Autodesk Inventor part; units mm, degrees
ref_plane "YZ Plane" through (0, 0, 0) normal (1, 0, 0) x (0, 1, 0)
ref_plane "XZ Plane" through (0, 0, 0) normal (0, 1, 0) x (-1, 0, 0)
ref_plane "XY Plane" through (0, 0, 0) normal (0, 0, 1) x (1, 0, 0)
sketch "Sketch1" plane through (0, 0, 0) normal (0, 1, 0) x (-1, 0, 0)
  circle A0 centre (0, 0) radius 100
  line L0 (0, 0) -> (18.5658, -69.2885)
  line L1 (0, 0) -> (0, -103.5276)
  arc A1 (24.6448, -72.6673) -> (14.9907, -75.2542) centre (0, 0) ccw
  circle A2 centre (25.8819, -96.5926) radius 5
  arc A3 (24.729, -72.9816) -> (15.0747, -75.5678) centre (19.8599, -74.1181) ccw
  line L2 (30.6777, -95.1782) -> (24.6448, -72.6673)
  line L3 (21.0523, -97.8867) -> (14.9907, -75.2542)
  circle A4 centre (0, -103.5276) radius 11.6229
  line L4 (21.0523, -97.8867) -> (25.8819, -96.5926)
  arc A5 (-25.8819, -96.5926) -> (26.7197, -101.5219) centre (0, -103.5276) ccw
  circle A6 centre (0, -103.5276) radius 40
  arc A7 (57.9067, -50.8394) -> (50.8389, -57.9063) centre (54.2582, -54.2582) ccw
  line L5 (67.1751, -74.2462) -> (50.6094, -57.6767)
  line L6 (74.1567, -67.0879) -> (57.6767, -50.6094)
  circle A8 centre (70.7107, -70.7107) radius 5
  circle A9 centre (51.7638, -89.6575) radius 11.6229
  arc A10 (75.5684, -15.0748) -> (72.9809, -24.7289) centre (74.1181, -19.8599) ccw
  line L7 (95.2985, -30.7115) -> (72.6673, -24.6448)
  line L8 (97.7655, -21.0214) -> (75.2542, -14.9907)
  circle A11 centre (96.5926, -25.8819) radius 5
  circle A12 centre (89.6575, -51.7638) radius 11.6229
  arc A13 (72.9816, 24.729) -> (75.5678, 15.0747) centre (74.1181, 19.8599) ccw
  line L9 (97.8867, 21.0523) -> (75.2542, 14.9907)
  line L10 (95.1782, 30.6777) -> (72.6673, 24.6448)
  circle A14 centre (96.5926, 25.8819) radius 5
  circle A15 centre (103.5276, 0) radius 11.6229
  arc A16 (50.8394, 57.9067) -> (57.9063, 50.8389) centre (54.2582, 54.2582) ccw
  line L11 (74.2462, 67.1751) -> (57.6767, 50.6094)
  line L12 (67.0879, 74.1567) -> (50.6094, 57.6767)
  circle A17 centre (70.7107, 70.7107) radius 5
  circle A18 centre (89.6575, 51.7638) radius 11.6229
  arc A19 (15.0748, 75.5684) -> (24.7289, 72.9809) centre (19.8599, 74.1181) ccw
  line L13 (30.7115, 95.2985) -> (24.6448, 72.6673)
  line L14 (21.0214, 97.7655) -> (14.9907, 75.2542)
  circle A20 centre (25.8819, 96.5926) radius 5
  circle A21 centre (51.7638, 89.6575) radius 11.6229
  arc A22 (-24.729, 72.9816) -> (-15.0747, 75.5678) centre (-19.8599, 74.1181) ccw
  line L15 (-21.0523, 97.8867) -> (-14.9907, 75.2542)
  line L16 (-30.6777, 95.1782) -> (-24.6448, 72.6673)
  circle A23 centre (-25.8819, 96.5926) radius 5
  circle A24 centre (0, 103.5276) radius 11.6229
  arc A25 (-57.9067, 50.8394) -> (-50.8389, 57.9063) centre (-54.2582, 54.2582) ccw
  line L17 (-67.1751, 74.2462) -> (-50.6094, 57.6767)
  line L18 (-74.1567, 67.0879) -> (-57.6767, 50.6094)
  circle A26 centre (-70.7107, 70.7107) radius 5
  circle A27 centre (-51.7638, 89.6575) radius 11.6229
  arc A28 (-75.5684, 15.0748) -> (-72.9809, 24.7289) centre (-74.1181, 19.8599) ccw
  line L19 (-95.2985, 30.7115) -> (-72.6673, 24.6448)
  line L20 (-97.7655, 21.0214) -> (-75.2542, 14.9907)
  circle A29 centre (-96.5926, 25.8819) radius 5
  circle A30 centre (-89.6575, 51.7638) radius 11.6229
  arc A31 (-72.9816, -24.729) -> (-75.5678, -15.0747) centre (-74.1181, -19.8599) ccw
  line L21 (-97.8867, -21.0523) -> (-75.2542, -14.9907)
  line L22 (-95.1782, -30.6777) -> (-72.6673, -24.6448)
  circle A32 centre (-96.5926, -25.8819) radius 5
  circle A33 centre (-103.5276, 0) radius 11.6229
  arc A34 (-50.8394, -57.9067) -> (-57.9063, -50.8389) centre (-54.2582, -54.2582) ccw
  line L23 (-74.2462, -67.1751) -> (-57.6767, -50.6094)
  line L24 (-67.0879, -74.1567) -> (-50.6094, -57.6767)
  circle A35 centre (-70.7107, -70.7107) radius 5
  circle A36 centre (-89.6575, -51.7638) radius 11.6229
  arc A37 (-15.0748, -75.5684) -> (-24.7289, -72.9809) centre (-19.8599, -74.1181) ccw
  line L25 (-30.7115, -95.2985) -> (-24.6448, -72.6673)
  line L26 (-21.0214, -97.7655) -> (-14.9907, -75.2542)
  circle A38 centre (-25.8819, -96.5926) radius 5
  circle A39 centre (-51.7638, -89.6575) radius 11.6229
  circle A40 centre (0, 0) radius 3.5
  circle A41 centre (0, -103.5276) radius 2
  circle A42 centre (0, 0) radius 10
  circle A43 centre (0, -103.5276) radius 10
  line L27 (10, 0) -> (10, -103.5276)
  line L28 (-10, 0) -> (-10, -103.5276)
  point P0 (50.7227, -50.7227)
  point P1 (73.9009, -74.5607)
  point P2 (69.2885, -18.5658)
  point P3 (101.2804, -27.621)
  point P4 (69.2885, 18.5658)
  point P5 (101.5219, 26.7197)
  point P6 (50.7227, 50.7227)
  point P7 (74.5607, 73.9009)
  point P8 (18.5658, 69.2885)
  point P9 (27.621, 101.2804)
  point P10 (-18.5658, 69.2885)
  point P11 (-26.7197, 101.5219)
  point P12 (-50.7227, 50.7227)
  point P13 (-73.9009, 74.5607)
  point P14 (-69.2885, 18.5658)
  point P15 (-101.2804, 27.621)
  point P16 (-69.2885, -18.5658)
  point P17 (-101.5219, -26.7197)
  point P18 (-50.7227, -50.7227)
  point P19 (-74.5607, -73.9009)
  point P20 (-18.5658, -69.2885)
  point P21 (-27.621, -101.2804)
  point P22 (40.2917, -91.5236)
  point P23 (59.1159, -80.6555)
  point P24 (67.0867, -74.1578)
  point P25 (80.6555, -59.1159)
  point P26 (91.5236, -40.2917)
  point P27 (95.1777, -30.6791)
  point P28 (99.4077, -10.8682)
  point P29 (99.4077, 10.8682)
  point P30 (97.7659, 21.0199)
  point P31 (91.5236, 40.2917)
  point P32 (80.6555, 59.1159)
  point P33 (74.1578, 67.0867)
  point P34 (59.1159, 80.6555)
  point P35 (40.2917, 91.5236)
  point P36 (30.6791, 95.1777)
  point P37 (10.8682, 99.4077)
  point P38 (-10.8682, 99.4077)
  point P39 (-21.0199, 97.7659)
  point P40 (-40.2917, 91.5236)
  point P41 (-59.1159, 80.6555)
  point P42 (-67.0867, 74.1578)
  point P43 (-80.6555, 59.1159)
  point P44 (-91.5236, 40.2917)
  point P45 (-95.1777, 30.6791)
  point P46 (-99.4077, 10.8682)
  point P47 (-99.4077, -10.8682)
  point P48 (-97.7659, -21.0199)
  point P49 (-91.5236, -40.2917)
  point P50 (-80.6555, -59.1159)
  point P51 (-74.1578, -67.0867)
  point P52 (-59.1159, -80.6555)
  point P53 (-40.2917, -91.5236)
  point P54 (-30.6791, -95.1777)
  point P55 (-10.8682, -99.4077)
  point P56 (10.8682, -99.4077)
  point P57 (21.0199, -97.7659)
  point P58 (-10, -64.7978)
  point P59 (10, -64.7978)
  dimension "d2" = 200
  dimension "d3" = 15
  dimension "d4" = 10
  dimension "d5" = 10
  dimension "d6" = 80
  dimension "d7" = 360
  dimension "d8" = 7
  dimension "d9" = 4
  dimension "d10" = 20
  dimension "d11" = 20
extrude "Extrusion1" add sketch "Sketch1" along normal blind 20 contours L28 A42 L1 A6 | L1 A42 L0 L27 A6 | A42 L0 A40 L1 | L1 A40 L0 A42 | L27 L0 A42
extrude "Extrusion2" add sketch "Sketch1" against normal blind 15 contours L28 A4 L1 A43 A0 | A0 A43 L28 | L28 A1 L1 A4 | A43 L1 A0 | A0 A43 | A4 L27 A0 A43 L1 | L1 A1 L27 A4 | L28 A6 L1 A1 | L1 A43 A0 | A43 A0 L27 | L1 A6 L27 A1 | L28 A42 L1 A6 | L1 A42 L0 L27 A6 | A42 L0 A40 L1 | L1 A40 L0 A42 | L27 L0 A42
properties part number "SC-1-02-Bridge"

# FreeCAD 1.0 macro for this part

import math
import FreeCAD as App
import Part
import Sketcher

doc = App.newDocument("Part")
params = doc.addObject("Spreadsheet::Sheet", "Params")
for row, (alias, value) in enumerate([
    ("sketch1_diameter", "7 mm"),
    ("sketch1_radius", "40 mm"),
    ("sketch1_radius2", "10 mm"),
    ("pad1_length", "20 mm"),
    ("sketch2_diameter", "4 mm"),
    ("sketch2_diameter2", "7 mm"),
    ("sketch2_radius", "10 mm"),
    ("pad2_length", "15 mm"),
], start=1):
    params.set(f"A{row}", alias)
    params.set(f"B{row}", "=" + value)
    params.setAlias(f"B{row}", alias)

body = doc.addObject("PartDesign::Body", "Body")

# Sketch on XZ plane
sketch1 = body.newObject("Sketcher::SketchObject", "Sketch")
sketch1.AttachmentSupport = (doc.getObject("XZ_Plane"), [""])
sketch1.MapMode = "FlatFace"
sketch1.addGeometry([
    Part.LineSegment(App.Vector(10, 0, 0), App.Vector(10, -64.797767, 0)),  # 0
    Part.ArcOfCircle(Part.Circle(App.Vector(0, -103.5276, 0), App.Vector(0, 0, 1), 40), math.radians(75.522488), math.radians(104.477512)),  # 1
    Part.LineSegment(App.Vector(-10, -64.797767, 0), App.Vector(-10, 0, 0)),  # 2
    Part.ArcOfCircle(Part.Circle(App.Vector(0, 0, 0), App.Vector(0, 0, 1), 10), math.radians(0), math.radians(180)),  # 3
    Part.Circle(App.Vector(0, 0, 0), App.Vector(0, 0, 1), 3.5),  # 4
], False)
sketch1.addConstraint([
    Sketcher.Constraint("Coincident", 0, 2, 1, 1),
    Sketcher.Constraint("Coincident", 1, 2, 2, 1),
    Sketcher.Constraint("Tangent", 2, 2, 3, 2),
    Sketcher.Constraint("Tangent", 3, 1, 0, 1),
    Sketcher.Constraint("Vertical", 0),
    Sketcher.Constraint("Vertical", 2),
    Sketcher.Constraint("Coincident", 3, 3, -1, 1),
    Sketcher.Constraint("Coincident", 4, 3, -1, 1),
    Sketcher.Constraint("PointOnObject", 1, 3, -2),
    Sketcher.Constraint("Diameter", 4, 7.0),
    Sketcher.Constraint("Radius", 1, 40.0),
    Sketcher.Constraint("Radius", 3, 10.0),
    Sketcher.Constraint("DistanceY", 0, 2, 0, 1, 64.7978),
])
sketch1.setExpression("Constraints[9]", "Params.sketch1_diameter")
sketch1.setExpression("Constraints[10]", "Params.sketch1_radius")
sketch1.setExpression("Constraints[11]", "Params.sketch1_radius2")
pad1 = body.newObject("PartDesign::Pad", "Pad")
pad1.Profile = sketch1
pad1.setExpression("Length", "Params.pad1_length")
pad1.Reversed = True

# Sketch on XZ plane
sketch2 = body.newObject("Sketcher::SketchObject", "Sketch001")
sketch2.AttachmentSupport = (doc.getObject("XZ_Plane"), [""])
sketch2.MapMode = "FlatFace"
sketch2.addGeometry([
    Part.ArcOfCircle(Part.Circle(App.Vector(0, -103.5276, 0), App.Vector(0, 0, 1), 10), math.radians(180), math.radians(360)),  # 0
    Part.LineSegment(App.Vector(-10, -103.5276, 0), App.Vector(-10, 0, 0)),  # 1
    Part.ArcOfCircle(Part.Circle(App.Vector(0, 0, 0), App.Vector(0, 0, 1), 10), math.radians(0), math.radians(180)),  # 2
    Part.LineSegment(App.Vector(10, 0, 0), App.Vector(10, -103.5276, 0)),  # 3
    Part.Circle(App.Vector(0, -103.5276, 0), App.Vector(0, 0, 1), 2),  # 4
    Part.Circle(App.Vector(0, 0, 0), App.Vector(0, 0, 1), 3.5),  # 5
], False)
sketch2.addConstraint([
    Sketcher.Constraint("Tangent", 0, 1, 1, 1),
    Sketcher.Constraint("Tangent", 1, 2, 2, 2),
    Sketcher.Constraint("Tangent", 2, 1, 3, 1),
    Sketcher.Constraint("Tangent", 3, 2, 0, 2),
    Sketcher.Constraint("Vertical", 1),
    Sketcher.Constraint("Vertical", 3),
    Sketcher.Constraint("Coincident", 2, 3, -1, 1),
    Sketcher.Constraint("Coincident", 5, 3, -1, 1),
    Sketcher.Constraint("Coincident", 4, 3, 0, 3),
    Sketcher.Constraint("Diameter", 4, 4.0),
    Sketcher.Constraint("Diameter", 5, 7.0),
    Sketcher.Constraint("Radius", 0, 10.0),
    Sketcher.Constraint("DistanceY", 1, 1, 1, 2, 103.5276),
])
sketch2.setExpression("Constraints[9]", "Params.sketch2_diameter")
sketch2.setExpression("Constraints[10]", "Params.sketch2_diameter2")
sketch2.setExpression("Constraints[11]", "Params.sketch2_radius")
pad2 = body.newObject("PartDesign::Pad", "Pad001")
pad2.Profile = sketch2
pad2.setExpression("Length", "Params.pad2_length")

doc.recompute()
